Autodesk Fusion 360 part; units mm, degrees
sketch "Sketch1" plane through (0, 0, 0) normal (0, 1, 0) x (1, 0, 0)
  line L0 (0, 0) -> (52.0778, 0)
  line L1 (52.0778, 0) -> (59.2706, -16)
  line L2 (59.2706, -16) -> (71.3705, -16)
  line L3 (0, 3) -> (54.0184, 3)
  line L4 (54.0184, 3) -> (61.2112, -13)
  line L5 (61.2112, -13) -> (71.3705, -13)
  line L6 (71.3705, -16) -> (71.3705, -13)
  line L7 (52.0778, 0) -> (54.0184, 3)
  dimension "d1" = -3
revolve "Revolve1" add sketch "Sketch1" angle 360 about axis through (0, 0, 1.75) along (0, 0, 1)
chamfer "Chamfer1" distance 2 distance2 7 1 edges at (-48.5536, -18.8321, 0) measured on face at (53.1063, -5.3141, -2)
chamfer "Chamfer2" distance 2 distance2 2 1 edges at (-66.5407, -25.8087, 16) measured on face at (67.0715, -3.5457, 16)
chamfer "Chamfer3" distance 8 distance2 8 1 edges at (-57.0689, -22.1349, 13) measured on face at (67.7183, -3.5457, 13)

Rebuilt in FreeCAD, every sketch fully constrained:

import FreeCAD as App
import Part
import Sketcher
from FreeCAD import Vector
Q = App.Units.Quantity


def edges_at(feature, points):
    """Names of the edges that pass closest to the given points."""
    edges = feature.Shape.Edges
    near = lambda p: min(range(len(edges)), key=lambda i: edges[i].distToShape(Part.Vertex(*p))[0])
    return sorted({f"Edge{near(p) + 1}" for p in points})


def add_polygon(sketch, points):
    """Adds a closed chain of lines whose ends are joined by coincident constraints."""
    first, n = sketch.GeometryCount, len(points)
    for a, b in zip(points, points[1:] + points[:1]):
        sketch.addGeometry(Part.LineSegment(App.Vector(*a, 0), App.Vector(*b, 0)), False)
    for i in range(n):
        sketch.addConstraint(Sketcher.Constraint("Coincident", first + i, 2, first + (i + 1) % n, 1))

doc = App.newDocument("Part")
body = doc.addObject("PartDesign::Body", "Body")

# Sketch on XZ plane
sketch1 = body.newObject("Sketcher::SketchObject", "Sketch")
sketch1.AttachmentSupport = (doc.getObject("XZ_Plane"), [""])
sketch1.MapMode = "FlatFace"
add_polygon(sketch1, [(54, -3), (52.1, 0), (59.3, 16), (71.4, 16), (71.4, 13), (61.2, 13)])  # lines 0-5
sketch1.addConstraint(Sketcher.Constraint("Horizontal", 2))
sketch1.addConstraint(Sketcher.Constraint("Vertical", 3))
sketch1.addConstraint(Sketcher.Constraint("Horizontal", 4))
sketch1.addConstraint(Sketcher.Constraint("PointOnObject", 0, 2, -1))
sketch1.addConstraint(Sketcher.Constraint("Parallel", 1, 5))
sketch1.addConstraint(Sketcher.Constraint("Equal", 1, 5))
sketch1.addConstraint(Sketcher.Constraint("DistanceY", 3, 2, 3, 1, Q("3 mm")))
sketch1.addConstraint(Sketcher.Constraint("DistanceX", 2, 1, 2, 2, Q("12.1 mm")))
sketch1.addConstraint(Sketcher.Constraint("DistanceY", -1, 1, 1, 2, Q("16 mm")))
sketch1.addConstraint(Sketcher.Constraint("Distance", 0, Q("3.573 mm")))
sketch1.addConstraint(Sketcher.Constraint("DistanceX", 5, 2, 3, 2, Q("17.352 mm")))
sketch1.addConstraint(Sketcher.Constraint("DistanceX", -1, 1, 0, 2, Q("52.0778 mm")))
revolution = body.newObject("PartDesign::Revolution", "Revolution")
revolution.Profile = sketch1
revolution.ReferenceAxis = (sketch1, ["V_Axis"])
revolution.Angle = 360
doc.recompute()

chamfer = body.newObject("PartDesign::Chamfer", "Chamfer")
chamfer.Base = (revolution, edges_at(revolution, [(-48.554, -18.832, 0)]))
chamfer.ChamferType = "Two distances"
chamfer.Size = 2
chamfer.Size2 = 7
doc.recompute()

chamfer2 = body.newObject("PartDesign::Chamfer", "Chamfer001")
chamfer2.Base = (chamfer, edges_at(chamfer, [(-66.541, -25.809, 16)]))
chamfer2.ChamferType = "Two distances"
chamfer2.Size = 2
chamfer2.Size2 = 2
doc.recompute()

chamfer3 = body.newObject("PartDesign::Chamfer", "Chamfer002")
chamfer3.Base = (chamfer2, edges_at(chamfer2, [(-57.069, -22.135, 13)]))
chamfer3.ChamferType = "Two distances"
chamfer3.Size = 8
chamfer3.Size2 = 8

doc.recompute()
